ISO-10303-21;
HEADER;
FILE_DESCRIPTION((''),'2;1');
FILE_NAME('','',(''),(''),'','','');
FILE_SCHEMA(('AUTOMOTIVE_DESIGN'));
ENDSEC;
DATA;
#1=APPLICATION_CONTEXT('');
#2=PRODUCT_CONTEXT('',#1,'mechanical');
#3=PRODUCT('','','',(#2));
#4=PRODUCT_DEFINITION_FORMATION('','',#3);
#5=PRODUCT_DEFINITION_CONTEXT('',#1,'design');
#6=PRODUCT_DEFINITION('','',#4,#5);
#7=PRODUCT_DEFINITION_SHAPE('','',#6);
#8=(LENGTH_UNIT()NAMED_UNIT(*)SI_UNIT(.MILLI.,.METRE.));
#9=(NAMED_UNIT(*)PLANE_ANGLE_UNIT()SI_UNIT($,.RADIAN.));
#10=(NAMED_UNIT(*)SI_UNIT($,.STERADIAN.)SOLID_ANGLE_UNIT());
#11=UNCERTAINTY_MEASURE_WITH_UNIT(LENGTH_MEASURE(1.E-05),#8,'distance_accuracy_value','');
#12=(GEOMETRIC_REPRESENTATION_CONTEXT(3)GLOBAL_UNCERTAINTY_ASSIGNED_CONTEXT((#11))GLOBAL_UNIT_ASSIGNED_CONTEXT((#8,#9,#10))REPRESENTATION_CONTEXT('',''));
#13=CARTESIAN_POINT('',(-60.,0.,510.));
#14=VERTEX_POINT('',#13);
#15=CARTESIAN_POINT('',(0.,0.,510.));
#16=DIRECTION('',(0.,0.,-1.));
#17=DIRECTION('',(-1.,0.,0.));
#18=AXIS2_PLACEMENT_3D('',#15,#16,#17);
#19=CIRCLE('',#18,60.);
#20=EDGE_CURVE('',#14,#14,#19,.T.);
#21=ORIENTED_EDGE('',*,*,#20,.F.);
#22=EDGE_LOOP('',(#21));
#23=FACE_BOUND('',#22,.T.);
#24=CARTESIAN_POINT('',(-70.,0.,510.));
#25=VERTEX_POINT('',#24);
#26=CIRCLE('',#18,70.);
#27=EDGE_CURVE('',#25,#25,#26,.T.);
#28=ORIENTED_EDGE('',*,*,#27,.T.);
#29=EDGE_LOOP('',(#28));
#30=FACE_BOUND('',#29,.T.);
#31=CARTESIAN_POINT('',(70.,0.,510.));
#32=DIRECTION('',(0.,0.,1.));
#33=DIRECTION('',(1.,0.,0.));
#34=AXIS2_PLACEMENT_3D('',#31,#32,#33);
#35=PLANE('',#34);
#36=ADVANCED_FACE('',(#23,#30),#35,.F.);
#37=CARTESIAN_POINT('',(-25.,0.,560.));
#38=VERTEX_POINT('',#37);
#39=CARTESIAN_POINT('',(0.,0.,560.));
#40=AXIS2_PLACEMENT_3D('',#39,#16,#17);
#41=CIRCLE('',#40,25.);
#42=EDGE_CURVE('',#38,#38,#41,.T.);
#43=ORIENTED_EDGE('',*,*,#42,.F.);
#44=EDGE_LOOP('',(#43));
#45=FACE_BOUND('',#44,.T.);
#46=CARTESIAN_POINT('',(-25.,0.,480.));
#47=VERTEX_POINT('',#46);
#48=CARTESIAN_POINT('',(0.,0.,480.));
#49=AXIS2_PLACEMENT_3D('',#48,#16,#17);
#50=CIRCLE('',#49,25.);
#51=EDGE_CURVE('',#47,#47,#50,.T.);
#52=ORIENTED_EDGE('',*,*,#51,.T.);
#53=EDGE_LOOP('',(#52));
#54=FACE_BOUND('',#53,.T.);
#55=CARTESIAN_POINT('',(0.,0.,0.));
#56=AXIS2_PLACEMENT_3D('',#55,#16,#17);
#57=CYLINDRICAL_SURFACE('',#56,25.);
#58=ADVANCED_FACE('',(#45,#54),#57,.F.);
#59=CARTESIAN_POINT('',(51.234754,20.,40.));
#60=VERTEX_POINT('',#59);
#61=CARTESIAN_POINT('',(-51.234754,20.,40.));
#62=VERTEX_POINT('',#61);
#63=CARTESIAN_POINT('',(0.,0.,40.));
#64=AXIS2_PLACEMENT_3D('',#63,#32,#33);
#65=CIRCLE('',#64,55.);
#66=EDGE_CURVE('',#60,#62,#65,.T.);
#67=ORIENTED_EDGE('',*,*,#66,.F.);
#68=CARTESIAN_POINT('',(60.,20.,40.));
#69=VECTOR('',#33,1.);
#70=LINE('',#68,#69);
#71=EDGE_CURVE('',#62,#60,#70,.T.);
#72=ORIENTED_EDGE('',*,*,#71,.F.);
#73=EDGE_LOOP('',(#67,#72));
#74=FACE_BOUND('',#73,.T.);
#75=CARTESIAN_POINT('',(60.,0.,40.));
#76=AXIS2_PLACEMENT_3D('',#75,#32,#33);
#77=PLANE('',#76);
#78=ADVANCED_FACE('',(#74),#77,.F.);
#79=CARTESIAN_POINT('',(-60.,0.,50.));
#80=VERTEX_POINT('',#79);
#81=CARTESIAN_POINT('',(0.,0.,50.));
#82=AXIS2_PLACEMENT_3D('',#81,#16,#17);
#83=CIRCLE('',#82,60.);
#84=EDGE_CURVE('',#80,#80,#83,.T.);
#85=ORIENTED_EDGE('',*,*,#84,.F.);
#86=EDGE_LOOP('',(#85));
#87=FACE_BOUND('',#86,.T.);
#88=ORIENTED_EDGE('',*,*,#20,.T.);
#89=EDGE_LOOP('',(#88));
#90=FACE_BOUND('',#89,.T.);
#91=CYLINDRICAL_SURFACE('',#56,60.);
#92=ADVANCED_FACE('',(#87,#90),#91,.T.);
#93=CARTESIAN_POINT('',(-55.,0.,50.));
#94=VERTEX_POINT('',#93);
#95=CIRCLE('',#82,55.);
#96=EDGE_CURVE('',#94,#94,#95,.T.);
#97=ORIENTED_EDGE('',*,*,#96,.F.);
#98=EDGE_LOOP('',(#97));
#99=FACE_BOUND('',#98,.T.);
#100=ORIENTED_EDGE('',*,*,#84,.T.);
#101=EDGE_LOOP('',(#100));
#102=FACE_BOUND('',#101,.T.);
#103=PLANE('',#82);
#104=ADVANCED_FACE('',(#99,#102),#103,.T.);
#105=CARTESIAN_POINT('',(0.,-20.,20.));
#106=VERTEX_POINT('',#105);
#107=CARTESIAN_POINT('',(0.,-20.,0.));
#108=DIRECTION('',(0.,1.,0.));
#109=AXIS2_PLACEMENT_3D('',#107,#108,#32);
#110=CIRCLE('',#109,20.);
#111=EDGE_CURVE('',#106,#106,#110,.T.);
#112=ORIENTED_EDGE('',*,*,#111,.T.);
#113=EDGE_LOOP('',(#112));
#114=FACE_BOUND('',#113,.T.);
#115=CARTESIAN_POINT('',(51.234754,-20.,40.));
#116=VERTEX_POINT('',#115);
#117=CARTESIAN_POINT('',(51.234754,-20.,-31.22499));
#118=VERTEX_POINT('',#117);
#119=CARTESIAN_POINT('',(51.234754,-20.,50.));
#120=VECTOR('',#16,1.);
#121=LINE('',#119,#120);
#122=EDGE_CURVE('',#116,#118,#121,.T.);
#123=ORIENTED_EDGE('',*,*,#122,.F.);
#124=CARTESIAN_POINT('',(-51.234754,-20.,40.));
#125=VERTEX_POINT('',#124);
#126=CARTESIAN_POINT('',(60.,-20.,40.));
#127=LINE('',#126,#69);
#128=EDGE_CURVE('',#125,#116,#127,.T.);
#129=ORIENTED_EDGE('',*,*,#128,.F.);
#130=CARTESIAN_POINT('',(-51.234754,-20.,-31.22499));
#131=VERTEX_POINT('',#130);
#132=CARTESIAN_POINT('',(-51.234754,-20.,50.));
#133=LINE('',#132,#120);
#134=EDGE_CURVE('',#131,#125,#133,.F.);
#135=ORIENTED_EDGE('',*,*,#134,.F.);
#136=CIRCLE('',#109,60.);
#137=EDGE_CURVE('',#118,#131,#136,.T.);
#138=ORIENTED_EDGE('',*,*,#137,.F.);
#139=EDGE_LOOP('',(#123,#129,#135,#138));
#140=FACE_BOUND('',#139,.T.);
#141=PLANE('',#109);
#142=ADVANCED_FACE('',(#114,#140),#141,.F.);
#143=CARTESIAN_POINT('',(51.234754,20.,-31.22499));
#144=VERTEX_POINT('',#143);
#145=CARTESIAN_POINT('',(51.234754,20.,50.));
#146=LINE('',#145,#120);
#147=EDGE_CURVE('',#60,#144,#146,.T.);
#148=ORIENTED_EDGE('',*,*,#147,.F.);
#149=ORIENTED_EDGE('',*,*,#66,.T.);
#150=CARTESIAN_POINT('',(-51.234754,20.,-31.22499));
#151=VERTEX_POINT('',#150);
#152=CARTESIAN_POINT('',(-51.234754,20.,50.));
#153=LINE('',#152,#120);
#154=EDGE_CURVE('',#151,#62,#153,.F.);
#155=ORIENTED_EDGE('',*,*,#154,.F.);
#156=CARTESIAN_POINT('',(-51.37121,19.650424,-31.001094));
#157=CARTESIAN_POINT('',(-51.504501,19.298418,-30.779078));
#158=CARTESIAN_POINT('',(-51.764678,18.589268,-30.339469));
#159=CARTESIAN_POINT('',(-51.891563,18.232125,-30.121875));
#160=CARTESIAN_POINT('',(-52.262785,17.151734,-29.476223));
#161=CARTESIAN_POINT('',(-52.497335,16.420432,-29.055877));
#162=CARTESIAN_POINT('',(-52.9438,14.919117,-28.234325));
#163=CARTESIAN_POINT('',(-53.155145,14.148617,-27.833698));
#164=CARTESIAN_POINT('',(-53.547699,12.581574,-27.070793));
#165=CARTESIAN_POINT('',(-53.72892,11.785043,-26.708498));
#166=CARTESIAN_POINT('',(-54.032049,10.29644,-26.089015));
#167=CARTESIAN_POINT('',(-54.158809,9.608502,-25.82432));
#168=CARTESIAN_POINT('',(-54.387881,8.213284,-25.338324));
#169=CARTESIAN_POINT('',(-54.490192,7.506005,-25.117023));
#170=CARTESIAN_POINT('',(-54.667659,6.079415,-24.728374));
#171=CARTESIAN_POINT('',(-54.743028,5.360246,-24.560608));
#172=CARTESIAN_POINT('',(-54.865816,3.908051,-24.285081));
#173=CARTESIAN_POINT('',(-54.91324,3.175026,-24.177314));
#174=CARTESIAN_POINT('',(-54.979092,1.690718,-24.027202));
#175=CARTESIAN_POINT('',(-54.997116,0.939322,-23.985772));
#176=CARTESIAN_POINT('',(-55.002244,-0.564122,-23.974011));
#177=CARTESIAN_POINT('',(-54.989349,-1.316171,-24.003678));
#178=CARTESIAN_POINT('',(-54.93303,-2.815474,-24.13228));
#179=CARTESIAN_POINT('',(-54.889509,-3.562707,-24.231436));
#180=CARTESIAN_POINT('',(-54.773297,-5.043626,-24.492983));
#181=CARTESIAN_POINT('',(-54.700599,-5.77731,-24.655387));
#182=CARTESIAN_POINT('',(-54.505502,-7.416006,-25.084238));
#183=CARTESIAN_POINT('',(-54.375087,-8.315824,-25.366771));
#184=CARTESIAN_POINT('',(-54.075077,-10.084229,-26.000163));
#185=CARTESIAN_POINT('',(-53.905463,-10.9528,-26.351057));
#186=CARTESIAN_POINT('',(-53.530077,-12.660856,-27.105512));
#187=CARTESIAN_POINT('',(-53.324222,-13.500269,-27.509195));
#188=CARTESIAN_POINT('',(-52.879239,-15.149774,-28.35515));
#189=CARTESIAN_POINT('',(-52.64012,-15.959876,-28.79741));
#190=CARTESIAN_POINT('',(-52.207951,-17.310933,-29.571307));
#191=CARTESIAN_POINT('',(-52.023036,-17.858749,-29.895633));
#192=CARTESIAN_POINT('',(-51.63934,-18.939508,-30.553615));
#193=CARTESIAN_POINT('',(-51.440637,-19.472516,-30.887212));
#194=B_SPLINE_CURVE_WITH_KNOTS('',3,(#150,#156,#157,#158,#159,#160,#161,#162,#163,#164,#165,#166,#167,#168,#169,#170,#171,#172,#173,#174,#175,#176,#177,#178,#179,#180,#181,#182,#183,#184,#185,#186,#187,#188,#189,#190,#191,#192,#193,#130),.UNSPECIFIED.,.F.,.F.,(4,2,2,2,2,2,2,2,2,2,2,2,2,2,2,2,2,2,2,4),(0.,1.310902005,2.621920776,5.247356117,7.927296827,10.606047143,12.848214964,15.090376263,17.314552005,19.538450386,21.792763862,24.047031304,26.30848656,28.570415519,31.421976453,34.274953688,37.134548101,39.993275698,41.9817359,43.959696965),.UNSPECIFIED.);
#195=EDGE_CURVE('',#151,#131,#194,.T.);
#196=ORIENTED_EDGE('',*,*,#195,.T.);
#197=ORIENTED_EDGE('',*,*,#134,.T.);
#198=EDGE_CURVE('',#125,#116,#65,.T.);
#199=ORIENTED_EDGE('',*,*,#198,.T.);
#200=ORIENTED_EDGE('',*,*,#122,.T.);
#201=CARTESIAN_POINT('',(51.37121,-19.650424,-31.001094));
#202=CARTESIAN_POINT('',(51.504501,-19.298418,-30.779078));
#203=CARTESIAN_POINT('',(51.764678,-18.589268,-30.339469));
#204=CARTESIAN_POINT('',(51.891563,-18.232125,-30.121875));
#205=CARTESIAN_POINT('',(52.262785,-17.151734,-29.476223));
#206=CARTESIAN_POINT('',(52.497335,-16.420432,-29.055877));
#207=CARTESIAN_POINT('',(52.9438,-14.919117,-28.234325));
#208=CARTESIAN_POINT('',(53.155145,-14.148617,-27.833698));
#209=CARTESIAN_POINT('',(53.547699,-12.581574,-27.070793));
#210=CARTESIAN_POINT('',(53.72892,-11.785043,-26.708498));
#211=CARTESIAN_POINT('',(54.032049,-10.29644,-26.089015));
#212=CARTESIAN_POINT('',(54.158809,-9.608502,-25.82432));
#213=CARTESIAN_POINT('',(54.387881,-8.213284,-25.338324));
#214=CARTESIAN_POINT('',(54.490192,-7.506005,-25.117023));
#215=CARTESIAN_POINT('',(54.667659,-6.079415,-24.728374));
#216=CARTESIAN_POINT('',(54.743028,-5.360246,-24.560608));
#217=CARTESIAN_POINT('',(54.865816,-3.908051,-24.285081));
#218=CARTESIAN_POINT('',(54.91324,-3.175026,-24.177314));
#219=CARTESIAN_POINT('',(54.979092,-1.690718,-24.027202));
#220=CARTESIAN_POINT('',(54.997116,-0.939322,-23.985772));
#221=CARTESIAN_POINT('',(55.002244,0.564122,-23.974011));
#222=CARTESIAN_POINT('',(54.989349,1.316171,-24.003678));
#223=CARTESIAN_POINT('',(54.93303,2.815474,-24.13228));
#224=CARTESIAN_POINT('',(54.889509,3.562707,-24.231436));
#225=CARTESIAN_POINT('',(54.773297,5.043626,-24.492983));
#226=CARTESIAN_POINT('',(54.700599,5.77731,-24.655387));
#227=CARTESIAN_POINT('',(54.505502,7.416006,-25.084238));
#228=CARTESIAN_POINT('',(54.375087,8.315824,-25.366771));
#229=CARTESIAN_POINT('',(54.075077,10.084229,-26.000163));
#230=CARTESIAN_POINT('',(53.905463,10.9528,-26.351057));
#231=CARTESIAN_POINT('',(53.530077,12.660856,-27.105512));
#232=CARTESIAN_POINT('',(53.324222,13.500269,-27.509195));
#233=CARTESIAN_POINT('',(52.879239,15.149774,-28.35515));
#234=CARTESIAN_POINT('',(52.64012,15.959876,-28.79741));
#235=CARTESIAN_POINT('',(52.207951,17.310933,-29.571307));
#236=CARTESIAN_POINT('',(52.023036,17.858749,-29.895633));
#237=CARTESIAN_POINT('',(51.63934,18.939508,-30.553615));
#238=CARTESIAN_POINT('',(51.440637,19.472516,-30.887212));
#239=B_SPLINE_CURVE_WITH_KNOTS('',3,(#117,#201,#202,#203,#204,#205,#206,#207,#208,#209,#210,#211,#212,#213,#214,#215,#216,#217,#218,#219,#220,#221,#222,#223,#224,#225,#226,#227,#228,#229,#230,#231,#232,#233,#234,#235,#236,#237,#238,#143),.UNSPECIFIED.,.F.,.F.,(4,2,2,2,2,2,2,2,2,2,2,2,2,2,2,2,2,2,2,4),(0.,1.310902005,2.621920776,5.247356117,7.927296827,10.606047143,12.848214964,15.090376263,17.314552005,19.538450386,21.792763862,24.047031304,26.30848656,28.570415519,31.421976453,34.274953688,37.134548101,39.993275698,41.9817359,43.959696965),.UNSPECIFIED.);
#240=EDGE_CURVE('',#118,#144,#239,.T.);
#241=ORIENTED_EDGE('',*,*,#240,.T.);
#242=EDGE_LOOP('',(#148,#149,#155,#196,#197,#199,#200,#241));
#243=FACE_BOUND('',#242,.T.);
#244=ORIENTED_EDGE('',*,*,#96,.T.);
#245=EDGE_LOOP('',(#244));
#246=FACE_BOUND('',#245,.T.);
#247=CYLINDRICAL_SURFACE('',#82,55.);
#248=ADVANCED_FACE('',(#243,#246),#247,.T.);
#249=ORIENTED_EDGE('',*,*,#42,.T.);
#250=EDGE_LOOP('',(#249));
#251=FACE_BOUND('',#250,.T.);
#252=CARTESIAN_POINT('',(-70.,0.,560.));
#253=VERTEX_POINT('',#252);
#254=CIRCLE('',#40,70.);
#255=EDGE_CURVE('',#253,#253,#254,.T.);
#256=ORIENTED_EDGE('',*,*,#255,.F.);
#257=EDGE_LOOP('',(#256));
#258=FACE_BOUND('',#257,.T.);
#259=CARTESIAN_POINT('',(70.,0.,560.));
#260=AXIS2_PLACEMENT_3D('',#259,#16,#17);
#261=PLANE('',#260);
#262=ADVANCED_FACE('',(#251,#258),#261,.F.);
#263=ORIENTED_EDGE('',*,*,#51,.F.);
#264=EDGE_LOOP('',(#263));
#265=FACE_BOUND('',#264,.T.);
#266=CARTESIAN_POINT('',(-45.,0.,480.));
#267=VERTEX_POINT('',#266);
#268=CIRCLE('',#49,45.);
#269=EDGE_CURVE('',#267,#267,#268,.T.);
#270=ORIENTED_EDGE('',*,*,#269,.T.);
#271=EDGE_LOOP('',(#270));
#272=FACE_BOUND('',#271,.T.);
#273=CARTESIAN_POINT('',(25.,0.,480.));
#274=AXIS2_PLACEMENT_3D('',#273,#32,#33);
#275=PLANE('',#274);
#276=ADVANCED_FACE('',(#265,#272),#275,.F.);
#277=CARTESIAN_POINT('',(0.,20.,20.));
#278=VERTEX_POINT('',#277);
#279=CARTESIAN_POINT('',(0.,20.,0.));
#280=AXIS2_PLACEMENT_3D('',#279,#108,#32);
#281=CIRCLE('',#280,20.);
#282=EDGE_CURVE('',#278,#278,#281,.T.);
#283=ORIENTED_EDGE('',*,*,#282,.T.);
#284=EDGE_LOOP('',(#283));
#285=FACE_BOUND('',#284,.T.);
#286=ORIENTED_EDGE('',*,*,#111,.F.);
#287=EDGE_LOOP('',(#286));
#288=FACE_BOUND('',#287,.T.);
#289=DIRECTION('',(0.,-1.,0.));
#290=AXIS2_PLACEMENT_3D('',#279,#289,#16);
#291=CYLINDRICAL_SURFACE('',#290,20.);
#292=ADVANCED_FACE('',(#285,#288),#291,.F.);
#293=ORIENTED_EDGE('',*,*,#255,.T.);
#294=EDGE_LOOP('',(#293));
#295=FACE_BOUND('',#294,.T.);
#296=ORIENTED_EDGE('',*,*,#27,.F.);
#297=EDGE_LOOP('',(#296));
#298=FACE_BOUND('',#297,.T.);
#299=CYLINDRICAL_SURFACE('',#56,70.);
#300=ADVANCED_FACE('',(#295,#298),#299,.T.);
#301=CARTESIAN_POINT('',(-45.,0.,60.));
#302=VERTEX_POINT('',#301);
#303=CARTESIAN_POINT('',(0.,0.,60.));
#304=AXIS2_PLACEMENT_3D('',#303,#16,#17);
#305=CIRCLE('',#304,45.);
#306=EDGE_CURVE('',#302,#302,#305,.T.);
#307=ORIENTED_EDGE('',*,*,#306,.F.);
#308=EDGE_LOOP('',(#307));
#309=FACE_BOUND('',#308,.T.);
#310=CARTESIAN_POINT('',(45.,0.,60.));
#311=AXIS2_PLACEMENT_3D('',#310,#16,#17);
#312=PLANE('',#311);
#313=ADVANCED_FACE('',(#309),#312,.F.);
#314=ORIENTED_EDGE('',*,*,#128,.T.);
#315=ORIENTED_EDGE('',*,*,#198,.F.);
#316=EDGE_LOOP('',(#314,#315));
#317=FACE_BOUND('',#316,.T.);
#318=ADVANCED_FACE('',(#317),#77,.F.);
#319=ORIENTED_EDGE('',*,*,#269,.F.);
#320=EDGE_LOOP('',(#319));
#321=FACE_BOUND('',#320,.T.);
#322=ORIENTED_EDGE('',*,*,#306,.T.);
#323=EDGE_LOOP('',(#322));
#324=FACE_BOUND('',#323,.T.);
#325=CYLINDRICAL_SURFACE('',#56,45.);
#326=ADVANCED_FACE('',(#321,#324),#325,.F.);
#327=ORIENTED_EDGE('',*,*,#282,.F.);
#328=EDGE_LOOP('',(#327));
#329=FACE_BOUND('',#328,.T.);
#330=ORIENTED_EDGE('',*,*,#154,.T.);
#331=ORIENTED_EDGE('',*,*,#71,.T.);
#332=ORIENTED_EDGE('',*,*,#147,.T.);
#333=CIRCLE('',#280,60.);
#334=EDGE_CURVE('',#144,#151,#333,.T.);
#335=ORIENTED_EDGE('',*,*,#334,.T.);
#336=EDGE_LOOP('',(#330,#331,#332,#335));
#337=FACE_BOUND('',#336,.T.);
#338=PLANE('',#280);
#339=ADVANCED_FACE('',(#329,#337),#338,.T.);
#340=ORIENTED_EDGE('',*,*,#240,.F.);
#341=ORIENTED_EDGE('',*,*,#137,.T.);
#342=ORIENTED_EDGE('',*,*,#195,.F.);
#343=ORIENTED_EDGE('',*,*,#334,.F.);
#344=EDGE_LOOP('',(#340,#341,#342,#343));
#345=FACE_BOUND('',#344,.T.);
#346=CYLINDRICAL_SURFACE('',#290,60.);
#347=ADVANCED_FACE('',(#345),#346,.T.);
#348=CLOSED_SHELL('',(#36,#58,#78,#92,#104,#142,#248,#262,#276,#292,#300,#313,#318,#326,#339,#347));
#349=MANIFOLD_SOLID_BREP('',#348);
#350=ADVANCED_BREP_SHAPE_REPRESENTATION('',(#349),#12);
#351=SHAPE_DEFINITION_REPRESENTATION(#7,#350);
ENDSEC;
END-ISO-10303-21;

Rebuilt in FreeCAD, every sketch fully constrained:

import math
import FreeCAD as App
import Part
import Sketcher

doc = App.newDocument("Part")
body = doc.addObject("PartDesign::Body", "Body")

# Sketch on XZ plane
sketch1 = body.newObject("Sketcher::SketchObject", "Sketch")
sketch1.AttachmentSupport = (doc.getObject("XZ_Plane"), [""])
sketch1.MapMode = "FlatFace"
sketch1.addGeometry([
    Part.LineSegment(App.Vector(70, 560, 0), App.Vector(70, 510, 0)),  # 0
    Part.LineSegment(App.Vector(70, 510, 0), App.Vector(60, 510, 0)),  # 1
    Part.LineSegment(App.Vector(60, 510, 0), App.Vector(60, 40, 0)),  # 2
    Part.LineSegment(App.Vector(60, 40, 0), App.Vector(0, 40, 0)),  # 3
    Part.LineSegment(App.Vector(0, 40, 0), App.Vector(0, 60, 0)),  # 4
    Part.LineSegment(App.Vector(0, 60, 0), App.Vector(45, 60, 0)),  # 5
    Part.LineSegment(App.Vector(45, 60, 0), App.Vector(45, 480, 0)),  # 6
    Part.LineSegment(App.Vector(45, 480, 0), App.Vector(25, 480, 0)),  # 7
    Part.LineSegment(App.Vector(25, 480, 0), App.Vector(25, 560, 0)),  # 8
    Part.LineSegment(App.Vector(25, 560, 0), App.Vector(70, 560, 0)),  # 9
], False)
sketch1.addConstraint([
    Sketcher.Constraint("Coincident", 0, 2, 1, 1),
    Sketcher.Constraint("Coincident", 1, 2, 2, 1),
    Sketcher.Constraint("Coincident", 2, 2, 3, 1),
    Sketcher.Constraint("Coincident", 3, 2, 4, 1),
    Sketcher.Constraint("Coincident", 4, 2, 5, 1),
    Sketcher.Constraint("Coincident", 5, 2, 6, 1),
    Sketcher.Constraint("Coincident", 6, 2, 7, 1),
    Sketcher.Constraint("Coincident", 7, 2, 8, 1),
    Sketcher.Constraint("Coincident", 8, 2, 9, 1),
    Sketcher.Constraint("Coincident", 9, 2, 0, 1),
    Sketcher.Constraint("Vertical", 0),
    Sketcher.Constraint("Horizontal", 1),
    Sketcher.Constraint("Vertical", 2),
    Sketcher.Constraint("Horizontal", 3),
    Sketcher.Constraint("Vertical", 4),
    Sketcher.Constraint("Horizontal", 5),
    Sketcher.Constraint("Vertical", 6),
    Sketcher.Constraint("Horizontal", 7),
    Sketcher.Constraint("Vertical", 8),
    Sketcher.Constraint("Horizontal", 9),
    Sketcher.Constraint("PointOnObject", 3, 2, -2),
    Sketcher.Constraint("Equal", 5, 9),
    Sketcher.Constraint("Equal", 7, 4),
    Sketcher.Constraint("DistanceX", 1, 2, 1, 1, 10.0),
    Sketcher.Constraint("DistanceX", 3, 2, 3, 1, 60.0),
    Sketcher.Constraint("DistanceX", 5, 1, 5, 2, 45.0),
    Sketcher.Constraint("DistanceY", 0, 2, 0, 1, 50.0),
    Sketcher.Constraint("DistanceY", 2, 2, 2, 1, 470.0),
    Sketcher.Constraint("DistanceY", 6, 1, 6, 2, 420.0),
    Sketcher.Constraint("DistanceY", -1, 1, 0, 2, 510.0),
])
revolution = body.newObject("PartDesign::Revolution", "Revolution")
revolution.Profile = sketch1
revolution.ReferenceAxis = (sketch1, ["V_Axis"])
revolution.Angle = 360

# Sketch on XZ plane
sketch2 = body.newObject("Sketcher::SketchObject", "Sketch001")
sketch2.AttachmentSupport = (doc.getObject("XZ_Plane"), [""])
sketch2.MapMode = "FlatFace"
sketch2.addGeometry([
    Part.LineSegment(App.Vector(60, 40, 0), App.Vector(60, 0, 0)),  # 0
    Part.ArcOfCircle(Part.Circle(App.Vector(0, 0, 0), App.Vector(0, 0, 1), 60), math.radians(180), math.radians(360)),  # 1
    Part.LineSegment(App.Vector(-60, 0, 0), App.Vector(-60, 40, 0)),  # 2
    Part.LineSegment(App.Vector(-60, 40, 0), App.Vector(60, 40, 0)),  # 3
    Part.Circle(App.Vector(0, 0, 0), App.Vector(0, 0, 1), 20),  # 4
], False)
sketch2.addConstraint([
    Sketcher.Constraint("Tangent", 0, 2, 1, 2),
    Sketcher.Constraint("Tangent", 1, 1, 2, 1),
    Sketcher.Constraint("Coincident", 2, 2, 3, 1),
    Sketcher.Constraint("Coincident", 3, 2, 0, 1),
    Sketcher.Constraint("Vertical", 0),
    Sketcher.Constraint("Vertical", 2),
    Sketcher.Constraint("Horizontal", 3),
    Sketcher.Constraint("Coincident", 1, 3, -1, 1),
    Sketcher.Constraint("Coincident", 4, 3, -1, 1),
    Sketcher.Constraint("Diameter", 4, 40.0),
    Sketcher.Constraint("Radius", 1, 60.0),
    Sketcher.Constraint("DistanceY", 0, 2, 0, 1, 40.0),
])
pad1 = body.newObject("PartDesign::Pad", "Pad")
pad1.Profile = sketch2
pad1.Length = 40
pad1.Midplane = True

# Sketch on XY plane
sketch3 = body.newObject("Sketcher::SketchObject", "Sketch002")
sketch3.AttachmentSupport = (doc.getObject("XY_Plane"), [""])
sketch3.MapMode = "FlatFace"
sketch3.AttachmentOffset = App.Placement(App.Vector(0, 0, 40), App.Rotation())
sketch3.addGeometry([
    Part.Circle(App.Vector(0, 0, 0), App.Vector(0, 0, 1), 63),
    Part.Circle(App.Vector(0, 0, 0), App.Vector(0, 0, 1), 55),
], False)
sketch3.addConstraint([
    Sketcher.Constraint("Coincident", 0, 3, -1, 1),
    Sketcher.Constraint("Coincident", 1, 3, -1, 1),
    Sketcher.Constraint("Diameter", 1, 110.0),
    Sketcher.Constraint("Diameter", 0, 126.491106),
])
pocket1 = body.newObject("PartDesign::Pocket", "Pocket")
pocket1.Profile = sketch3
pocket1.Type = "TwoLengths"
pocket1.Length = 101
pocket1.Length2 = 10

doc.recompute()
